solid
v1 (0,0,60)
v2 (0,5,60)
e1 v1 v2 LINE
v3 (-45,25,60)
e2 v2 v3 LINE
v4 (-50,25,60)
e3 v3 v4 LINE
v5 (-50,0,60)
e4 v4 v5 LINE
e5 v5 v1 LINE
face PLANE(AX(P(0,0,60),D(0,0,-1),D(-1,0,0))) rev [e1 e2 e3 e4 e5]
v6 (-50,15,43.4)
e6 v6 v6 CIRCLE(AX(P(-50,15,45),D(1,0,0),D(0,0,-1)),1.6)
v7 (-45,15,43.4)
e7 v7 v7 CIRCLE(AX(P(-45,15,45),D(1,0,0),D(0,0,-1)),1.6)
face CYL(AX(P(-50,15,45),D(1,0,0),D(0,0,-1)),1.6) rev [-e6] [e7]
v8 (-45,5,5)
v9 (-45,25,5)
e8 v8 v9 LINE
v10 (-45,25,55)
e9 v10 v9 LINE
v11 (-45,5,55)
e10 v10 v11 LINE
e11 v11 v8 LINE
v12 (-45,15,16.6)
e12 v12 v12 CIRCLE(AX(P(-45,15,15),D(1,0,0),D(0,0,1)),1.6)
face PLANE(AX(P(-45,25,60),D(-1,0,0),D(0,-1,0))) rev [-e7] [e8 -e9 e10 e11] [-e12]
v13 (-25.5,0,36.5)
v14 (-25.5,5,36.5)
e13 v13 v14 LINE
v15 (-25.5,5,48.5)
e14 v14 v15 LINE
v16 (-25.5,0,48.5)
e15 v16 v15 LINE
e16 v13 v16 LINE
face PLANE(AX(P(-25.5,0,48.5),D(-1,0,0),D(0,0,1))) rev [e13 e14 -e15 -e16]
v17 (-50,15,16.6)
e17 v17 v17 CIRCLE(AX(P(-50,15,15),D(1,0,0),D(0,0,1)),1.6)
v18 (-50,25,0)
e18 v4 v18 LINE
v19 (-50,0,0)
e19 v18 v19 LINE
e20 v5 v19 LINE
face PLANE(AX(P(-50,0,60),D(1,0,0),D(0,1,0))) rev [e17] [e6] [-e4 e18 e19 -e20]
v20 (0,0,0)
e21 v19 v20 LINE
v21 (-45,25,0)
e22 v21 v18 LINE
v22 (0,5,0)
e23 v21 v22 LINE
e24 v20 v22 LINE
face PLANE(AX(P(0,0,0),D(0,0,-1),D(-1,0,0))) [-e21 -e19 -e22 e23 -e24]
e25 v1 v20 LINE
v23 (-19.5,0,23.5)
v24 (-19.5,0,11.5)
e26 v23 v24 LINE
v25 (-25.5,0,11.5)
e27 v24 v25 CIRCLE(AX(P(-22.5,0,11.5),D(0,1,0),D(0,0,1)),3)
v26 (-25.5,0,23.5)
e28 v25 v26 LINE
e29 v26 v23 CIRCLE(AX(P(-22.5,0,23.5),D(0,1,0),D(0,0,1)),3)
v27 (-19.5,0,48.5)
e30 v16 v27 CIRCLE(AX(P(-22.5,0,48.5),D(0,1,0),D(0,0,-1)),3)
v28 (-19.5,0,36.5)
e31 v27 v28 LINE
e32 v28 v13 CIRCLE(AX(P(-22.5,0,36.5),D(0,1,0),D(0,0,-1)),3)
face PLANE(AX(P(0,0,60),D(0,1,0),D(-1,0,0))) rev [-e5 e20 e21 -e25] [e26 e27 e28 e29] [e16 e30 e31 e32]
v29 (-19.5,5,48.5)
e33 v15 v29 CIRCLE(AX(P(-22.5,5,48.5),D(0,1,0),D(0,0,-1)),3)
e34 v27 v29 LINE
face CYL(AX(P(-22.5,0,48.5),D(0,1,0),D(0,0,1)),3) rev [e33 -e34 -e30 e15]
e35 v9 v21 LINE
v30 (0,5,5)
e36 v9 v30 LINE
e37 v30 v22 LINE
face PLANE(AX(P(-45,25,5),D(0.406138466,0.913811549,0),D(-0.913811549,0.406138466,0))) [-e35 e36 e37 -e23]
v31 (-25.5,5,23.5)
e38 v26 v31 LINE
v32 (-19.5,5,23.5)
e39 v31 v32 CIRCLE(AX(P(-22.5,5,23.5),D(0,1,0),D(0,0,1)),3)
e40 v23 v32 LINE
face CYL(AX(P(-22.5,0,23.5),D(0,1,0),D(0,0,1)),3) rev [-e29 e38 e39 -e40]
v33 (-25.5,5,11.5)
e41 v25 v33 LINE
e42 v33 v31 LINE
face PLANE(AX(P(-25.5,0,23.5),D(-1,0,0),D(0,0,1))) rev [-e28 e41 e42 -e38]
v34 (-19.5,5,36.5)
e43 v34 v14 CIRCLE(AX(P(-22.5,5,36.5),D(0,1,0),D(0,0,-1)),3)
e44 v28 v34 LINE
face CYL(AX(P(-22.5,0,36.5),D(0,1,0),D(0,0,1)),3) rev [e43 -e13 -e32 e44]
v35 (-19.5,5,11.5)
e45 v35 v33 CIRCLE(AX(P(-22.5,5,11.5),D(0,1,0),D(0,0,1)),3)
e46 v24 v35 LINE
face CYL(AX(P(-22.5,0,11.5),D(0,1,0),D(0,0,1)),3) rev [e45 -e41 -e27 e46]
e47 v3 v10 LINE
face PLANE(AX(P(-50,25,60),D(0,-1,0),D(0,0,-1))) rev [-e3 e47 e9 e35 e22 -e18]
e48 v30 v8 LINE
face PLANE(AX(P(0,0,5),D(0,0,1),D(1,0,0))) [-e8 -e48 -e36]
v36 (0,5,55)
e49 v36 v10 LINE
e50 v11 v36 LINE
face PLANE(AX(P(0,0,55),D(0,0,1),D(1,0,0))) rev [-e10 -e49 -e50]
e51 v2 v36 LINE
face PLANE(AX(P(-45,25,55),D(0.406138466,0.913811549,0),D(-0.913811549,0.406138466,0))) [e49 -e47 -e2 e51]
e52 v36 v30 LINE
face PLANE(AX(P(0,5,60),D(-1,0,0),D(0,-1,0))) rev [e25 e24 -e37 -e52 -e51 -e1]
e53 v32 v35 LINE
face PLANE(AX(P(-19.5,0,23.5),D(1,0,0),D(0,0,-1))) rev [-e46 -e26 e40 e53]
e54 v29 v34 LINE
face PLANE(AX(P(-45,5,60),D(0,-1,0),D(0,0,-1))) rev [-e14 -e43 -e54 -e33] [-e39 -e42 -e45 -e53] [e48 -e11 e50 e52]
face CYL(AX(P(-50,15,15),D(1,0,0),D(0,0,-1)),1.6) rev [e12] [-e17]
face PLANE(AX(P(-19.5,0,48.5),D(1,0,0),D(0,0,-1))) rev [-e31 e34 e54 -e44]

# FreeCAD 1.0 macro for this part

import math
import FreeCAD as App
import Part
import Sketcher
from FreeCAD import Vector


def add_polygon(sketch, points):
    """Adds a closed chain of lines whose ends are joined by coincident constraints."""
    first, n = sketch.GeometryCount, len(points)
    for a, b in zip(points, points[1:] + points[:1]):
        sketch.addGeometry(Part.LineSegment(App.Vector(*a, 0), App.Vector(*b, 0)), False)
    for i in range(n):
        sketch.addConstraint(Sketcher.Constraint("Coincident", first + i, 2, first + (i + 1) % n, 1))

doc = App.newDocument("Part")
body = doc.addObject("PartDesign::Body", "Body")

# Sketch on XY plane
sketch1 = doc.addObject("Sketcher::SketchObject", "Sketch")
body.addObject(sketch1)
sketch1.AttachmentSupport = (doc.XY_Plane, [""])
sketch1.MapMode = "FlatFace"
add_polygon(sketch1, [(-50, 0), (0, 0), (0, 5), (-45, 5), (-45, 25), (-50, 25)])  # lines 0-5
sketch1.addConstraint([
    Sketcher.Constraint("Horizontal", 0),
    Sketcher.Constraint("Vertical", 1),
    Sketcher.Constraint("Horizontal", 2),
    Sketcher.Constraint("Vertical", 3),
    Sketcher.Constraint("Horizontal", 4),
    Sketcher.Constraint("Vertical", 5),
    Sketcher.Constraint("Coincident", 0, 2, -1, 1),
    Sketcher.Constraint("Equal", 4, 1),
    Sketcher.Constraint("DistanceX", 0, 1, 0, 2, 50.0),
    Sketcher.Constraint("DistanceX", 2, 2, 2, 1, 45.0),
    Sketcher.Constraint("DistanceY", 3, 1, 3, 2, 20.0),
])
pad1 = doc.addObject("PartDesign::Pad", "Pad")
body.addObject(pad1)
pad1.Profile = sketch1
pad1.Length = 60

# Sketch on XY plane
sketch2 = doc.addObject("Sketcher::SketchObject", "Sketch001")
body.addObject(sketch2)
sketch2.AttachmentSupport = (doc.XY_Plane, [""])
sketch2.MapMode = "FlatFace"
sketch2.AttachmentOffset = App.Placement(Vector(0, 0, 60), App.Rotation())
add_polygon(sketch2, [(0, 5), (-45, 25), (-45, 5)])  # lines 0-2
sketch2.addConstraint([
    Sketcher.Constraint("Vertical", 1),
    Sketcher.Constraint("Horizontal", 2),
    Sketcher.Constraint("PointOnObject", 2, 2, -2),
    Sketcher.Constraint("DistanceX", 2, 1, 2, 2, 45.0),
    Sketcher.Constraint("DistanceY", 1, 2, 1, 1, 20.0),
    Sketcher.Constraint("DistanceY", -1, 1, 0, 2, 25.0),
])
pad2 = doc.addObject("PartDesign::Pad", "Pad001")
body.addObject(pad2)
pad2.Profile = sketch2
pad2.Length = 5
pad2.Reversed = True

# Sketch on XY plane
sketch3 = doc.addObject("Sketcher::SketchObject", "Sketch002")
body.addObject(sketch3)
sketch3.AttachmentSupport = (doc.XY_Plane, [""])
sketch3.MapMode = "FlatFace"
add_polygon(sketch3, [(-45, 25), (0, 5), (-45, 5)])  # lines 0-2
sketch3.addConstraint([
    Sketcher.Constraint("Horizontal", 1),
    Sketcher.Constraint("Vertical", 2),
    Sketcher.Constraint("PointOnObject", 0, 2, -2),
    Sketcher.Constraint("DistanceX", 1, 2, 1, 1, 45.0),
    Sketcher.Constraint("DistanceY", 2, 1, 2, 2, 20.0),
    Sketcher.Constraint("DistanceY", -1, 1, 0, 2, 5.0),
])
pad3 = doc.addObject("PartDesign::Pad", "Pad002")
body.addObject(pad3)
pad3.Profile = sketch3
pad3.Length = 5

# Sketch on YZ plane
sketch4 = doc.addObject("Sketcher::SketchObject", "Sketch003")
body.addObject(sketch4)
sketch4.AttachmentSupport = (doc.YZ_Plane, [""])
sketch4.MapMode = "FlatFace"
sketch4.AttachmentOffset = App.Placement(Vector(0, 0, -45), App.Rotation())
sketch4.addGeometry([
    Part.Circle(Vector(15, 45, 0), Vector(0, 0, 1), 1.6),
    Part.Circle(Vector(15, 15, 0), Vector(0, 0, 1), 1.6),
], False)
sketch4.addConstraint([
    Sketcher.Constraint("Equal", 0, 1),
    Sketcher.Constraint("Vertical", 0, 3, 1, 3),
    Sketcher.Constraint("Diameter", 0, 3.2),
    Sketcher.Constraint("DistanceX", -1, 1, 0, 3, 15.0),
    Sketcher.Constraint("DistanceY", -1, 1, 0, 3, 45.0),
    Sketcher.Constraint("DistanceY", -1, 1, 1, 3, 15.0),
])
pocket1 = doc.addObject("PartDesign::Pocket", "Pocket")
body.addObject(pocket1)
pocket1.Profile = sketch4
pocket1.Length = 5

# Sketch on XZ plane
sketch5 = doc.addObject("Sketcher::SketchObject", "Sketch004")
body.addObject(sketch5)
sketch5.AttachmentSupport = (doc.XZ_Plane, [""])
sketch5.MapMode = "FlatFace"
sketch5.AttachmentOffset = App.Placement(Vector(0, 0, -5), App.Rotation())
sketch5.addGeometry([
    Part.LineSegment(Vector(-25.5, 11.5, 0), Vector(-25.5, 23.5, 0)),  # 0
    Part.ArcOfCircle(Part.Circle(Vector(-22.5, 23.5, 0), Vector(0, 0, 1), 3), math.radians(0), math.radians(180)),  # 1
    Part.LineSegment(Vector(-19.5, 23.5, 0), Vector(-19.5, 11.5, 0)),  # 2
    Part.ArcOfCircle(Part.Circle(Vector(-22.5, 11.5, 0), Vector(0, 0, 1), 3), math.radians(180), math.radians(360)),  # 3
    Part.LineSegment(Vector(-19.5, 48.5, 0), Vector(-19.5, 36.5, 0)),  # 4
    Part.ArcOfCircle(Part.Circle(Vector(-22.5, 36.5, 0), Vector(0, 0, 1), 3), math.radians(180), math.radians(360)),  # 5
    Part.LineSegment(Vector(-25.5, 36.5, 0), Vector(-25.5, 48.5, 0)),  # 6
    Part.ArcOfCircle(Part.Circle(Vector(-22.5, 48.5, 0), Vector(0, 0, 1), 3), math.radians(0), math.radians(180)),  # 7
], False)
sketch5.addConstraint([
    Sketcher.Constraint("Tangent", 0, 2, 1, 2),
    Sketcher.Constraint("Tangent", 1, 1, 2, 1),
    Sketcher.Constraint("Tangent", 2, 2, 3, 2),
    Sketcher.Constraint("Tangent", 3, 1, 0, 1),
    Sketcher.Constraint("Tangent", 4, 2, 5, 2),
    Sketcher.Constraint("Tangent", 5, 1, 6, 1),
    Sketcher.Constraint("Tangent", 6, 2, 7, 2),
    Sketcher.Constraint("Tangent", 7, 1, 4, 1),
    Sketcher.Constraint("Vertical", 0),
    Sketcher.Constraint("Vertical", 2),
    Sketcher.Constraint("Vertical", 4),
    Sketcher.Constraint("Vertical", 6),
    Sketcher.Constraint("Equal", 3, 5),
    Sketcher.Constraint("Vertical", 3, 3, 5, 3),
    Sketcher.Constraint("Equal", 2, 4),
    Sketcher.Constraint("Radius", 1, 3.0),
    Sketcher.Constraint("DistanceY", 0, 1, 0, 2, 12.0),
    Sketcher.Constraint("DistanceY", 1, 3, 5, 3, 13.0),
    Sketcher.Constraint("DistanceX", 1, 3, -1, 1, 22.5),
    Sketcher.Constraint("DistanceY", -1, 1, 1, 3, 23.5),
])
pocket2 = doc.addObject("PartDesign::Pocket", "Pocket001")
body.addObject(pocket2)
pocket2.Profile = sketch5
pocket2.Length = 5
pocket2.Reversed = True

doc.recompute()
